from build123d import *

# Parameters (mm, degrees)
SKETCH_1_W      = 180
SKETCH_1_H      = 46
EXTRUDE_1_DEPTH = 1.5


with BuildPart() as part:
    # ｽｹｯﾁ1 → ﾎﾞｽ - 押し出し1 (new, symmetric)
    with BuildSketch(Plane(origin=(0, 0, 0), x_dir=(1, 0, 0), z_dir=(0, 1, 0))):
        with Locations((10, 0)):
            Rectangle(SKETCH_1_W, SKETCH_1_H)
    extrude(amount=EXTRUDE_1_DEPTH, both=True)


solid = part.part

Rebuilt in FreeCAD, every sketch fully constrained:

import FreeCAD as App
import Part
import Sketcher

V = App.Vector


def add_polygon(sketch, points):
    """Adds a closed chain of lines whose ends are joined by coincident constraints."""
    first, n = sketch.GeometryCount, len(points)
    for a, b in zip(points, points[1:] + points[:1]):
        sketch.addGeometry(Part.LineSegment(App.Vector(*a, 0), App.Vector(*b, 0)), False)
    for i in range(n):
        sketch.addConstraint(Sketcher.Constraint("Coincident", first + i, 2, first + (i + 1) % n, 1))

doc = App.newDocument("Part")
body = doc.addObject("PartDesign::Body", "Body")

# Sketch on XZ plane
sketch1 = body.newObject("Sketcher::SketchObject", "Sketch")
sketch1.AttachmentSupport = (doc.getObject("XZ_Plane"), [""])
sketch1.MapMode = "FlatFace"
add_polygon(sketch1, [(-80, -23), (-80, 23), (100, 23), (100, -23)])  # lines 0-3
sketch1.addConstraint([
    Sketcher.Constraint("Vertical", 0),
    Sketcher.Constraint("Horizontal", 1),
    Sketcher.Constraint("Vertical", 2),
    Sketcher.Constraint("Horizontal", 3),
    Sketcher.Constraint("DistanceX", 1, 1, 1, 2, 180.0),
    Sketcher.Constraint("DistanceY", 0, 1, 0, 2, 46.0),
    Sketcher.Constraint("DistanceX", 0, 2, -1, 1, 80.0),
    Sketcher.Constraint("DistanceY", -1, 1, 0, 2, 23.0),
])
pad1 = body.newObject("PartDesign::Pad", "Pad")
pad1.Profile = sketch1
pad1.Length = 3
pad1.Midplane = True

doc.recompute()
